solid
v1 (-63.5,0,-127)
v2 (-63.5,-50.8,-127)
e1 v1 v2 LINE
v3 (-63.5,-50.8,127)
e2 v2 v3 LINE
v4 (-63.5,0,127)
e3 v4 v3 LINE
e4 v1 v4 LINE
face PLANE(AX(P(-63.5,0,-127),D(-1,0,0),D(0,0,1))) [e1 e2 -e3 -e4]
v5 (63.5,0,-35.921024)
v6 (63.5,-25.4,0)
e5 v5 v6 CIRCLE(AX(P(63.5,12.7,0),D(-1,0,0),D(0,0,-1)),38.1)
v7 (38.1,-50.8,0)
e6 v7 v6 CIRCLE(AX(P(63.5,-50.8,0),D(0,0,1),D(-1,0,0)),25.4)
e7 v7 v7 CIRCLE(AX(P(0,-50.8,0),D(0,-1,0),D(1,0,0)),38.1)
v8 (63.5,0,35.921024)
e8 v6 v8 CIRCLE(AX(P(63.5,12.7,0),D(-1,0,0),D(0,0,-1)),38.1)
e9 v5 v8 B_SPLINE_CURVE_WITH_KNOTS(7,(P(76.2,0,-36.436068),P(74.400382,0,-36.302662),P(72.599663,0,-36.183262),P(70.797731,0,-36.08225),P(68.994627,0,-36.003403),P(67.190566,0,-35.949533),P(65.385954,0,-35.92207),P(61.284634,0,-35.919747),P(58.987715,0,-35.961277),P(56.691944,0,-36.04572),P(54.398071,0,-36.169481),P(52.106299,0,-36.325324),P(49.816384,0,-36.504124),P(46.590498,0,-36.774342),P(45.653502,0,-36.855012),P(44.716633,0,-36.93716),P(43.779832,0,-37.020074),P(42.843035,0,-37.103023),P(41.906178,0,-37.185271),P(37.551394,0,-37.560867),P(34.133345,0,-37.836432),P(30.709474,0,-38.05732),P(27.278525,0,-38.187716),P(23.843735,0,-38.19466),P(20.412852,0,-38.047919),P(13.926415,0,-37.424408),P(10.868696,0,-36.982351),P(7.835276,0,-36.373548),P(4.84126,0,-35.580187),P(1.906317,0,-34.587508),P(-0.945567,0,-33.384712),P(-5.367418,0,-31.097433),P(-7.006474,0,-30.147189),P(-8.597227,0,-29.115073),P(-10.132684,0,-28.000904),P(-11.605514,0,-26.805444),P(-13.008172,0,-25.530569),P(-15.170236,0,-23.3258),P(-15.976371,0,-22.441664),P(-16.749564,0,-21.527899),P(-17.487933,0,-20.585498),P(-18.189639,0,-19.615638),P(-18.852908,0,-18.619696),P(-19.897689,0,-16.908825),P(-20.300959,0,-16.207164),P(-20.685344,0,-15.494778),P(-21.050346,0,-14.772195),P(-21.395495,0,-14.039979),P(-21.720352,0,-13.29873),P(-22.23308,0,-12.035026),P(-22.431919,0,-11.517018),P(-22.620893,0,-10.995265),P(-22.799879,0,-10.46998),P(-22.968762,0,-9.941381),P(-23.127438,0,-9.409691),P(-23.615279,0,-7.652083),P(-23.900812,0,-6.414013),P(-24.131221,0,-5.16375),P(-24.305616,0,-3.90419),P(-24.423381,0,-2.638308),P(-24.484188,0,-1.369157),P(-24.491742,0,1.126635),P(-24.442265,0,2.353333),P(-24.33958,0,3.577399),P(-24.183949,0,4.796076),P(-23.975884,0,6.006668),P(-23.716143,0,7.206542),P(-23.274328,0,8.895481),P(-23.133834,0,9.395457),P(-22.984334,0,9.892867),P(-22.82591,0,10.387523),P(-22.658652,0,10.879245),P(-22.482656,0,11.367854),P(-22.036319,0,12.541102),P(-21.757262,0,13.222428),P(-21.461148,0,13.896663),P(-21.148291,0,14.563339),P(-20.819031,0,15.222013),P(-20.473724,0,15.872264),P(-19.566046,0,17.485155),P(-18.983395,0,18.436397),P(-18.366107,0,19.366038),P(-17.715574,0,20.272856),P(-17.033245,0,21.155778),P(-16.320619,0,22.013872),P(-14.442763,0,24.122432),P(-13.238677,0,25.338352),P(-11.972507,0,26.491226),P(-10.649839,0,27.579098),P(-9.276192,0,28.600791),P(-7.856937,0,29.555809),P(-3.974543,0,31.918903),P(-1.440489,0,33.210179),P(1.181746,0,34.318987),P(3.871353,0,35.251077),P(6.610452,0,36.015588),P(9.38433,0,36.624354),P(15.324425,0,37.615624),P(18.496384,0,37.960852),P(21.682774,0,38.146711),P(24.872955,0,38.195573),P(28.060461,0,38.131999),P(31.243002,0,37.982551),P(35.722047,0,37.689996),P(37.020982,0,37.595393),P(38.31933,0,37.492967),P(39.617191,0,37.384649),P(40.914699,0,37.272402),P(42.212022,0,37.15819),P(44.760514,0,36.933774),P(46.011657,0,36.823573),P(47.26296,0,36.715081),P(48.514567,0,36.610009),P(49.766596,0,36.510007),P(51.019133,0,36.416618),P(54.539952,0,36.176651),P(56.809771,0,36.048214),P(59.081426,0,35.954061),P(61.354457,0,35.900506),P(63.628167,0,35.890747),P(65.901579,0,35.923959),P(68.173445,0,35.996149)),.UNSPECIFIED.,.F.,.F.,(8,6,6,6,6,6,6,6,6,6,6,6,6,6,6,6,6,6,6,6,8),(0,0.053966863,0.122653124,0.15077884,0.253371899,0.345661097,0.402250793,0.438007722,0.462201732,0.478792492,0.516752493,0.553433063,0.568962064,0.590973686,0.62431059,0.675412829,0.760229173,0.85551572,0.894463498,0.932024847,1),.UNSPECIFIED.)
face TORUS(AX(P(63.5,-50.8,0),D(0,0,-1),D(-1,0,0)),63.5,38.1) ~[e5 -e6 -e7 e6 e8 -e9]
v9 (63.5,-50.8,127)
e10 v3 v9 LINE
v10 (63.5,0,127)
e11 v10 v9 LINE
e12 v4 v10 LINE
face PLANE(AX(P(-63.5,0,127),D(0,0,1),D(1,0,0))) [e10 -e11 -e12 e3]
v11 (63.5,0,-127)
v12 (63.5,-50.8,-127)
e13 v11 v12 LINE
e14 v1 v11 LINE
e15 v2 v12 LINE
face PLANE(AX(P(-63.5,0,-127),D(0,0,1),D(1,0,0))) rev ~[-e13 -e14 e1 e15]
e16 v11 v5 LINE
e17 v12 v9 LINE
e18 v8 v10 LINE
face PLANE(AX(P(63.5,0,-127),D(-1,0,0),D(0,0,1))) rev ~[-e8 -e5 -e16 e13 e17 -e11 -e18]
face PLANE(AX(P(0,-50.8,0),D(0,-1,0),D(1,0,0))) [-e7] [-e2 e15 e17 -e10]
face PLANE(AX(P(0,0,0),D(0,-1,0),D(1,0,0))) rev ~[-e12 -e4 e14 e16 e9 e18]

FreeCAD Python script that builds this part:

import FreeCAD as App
import Part
import Sketcher

V = App.Vector
Q = App.Units.Quantity

doc = App.newDocument("Part")
body = doc.addObject("PartDesign::Body", "Body")

# Sketch on XZ plane
sketch1 = body.newObject("Sketcher::SketchObject", "Sketch")
sketch1.AttachmentSupport = (doc.getObject("XZ_Plane"), [""])
sketch1.MapMode = "FlatFace"
sketch1.addGeometry(Part.LineSegment(V(-64, 127, 0), V(-64, -127, 0)), False)
sketch1.addGeometry(Part.LineSegment(V(-64, -127, 0), V(64, -127, 0)), False)
sketch1.addGeometry(Part.LineSegment(V(64, -127, 0), V(64, 127, 0)), False)
sketch1.addGeometry(Part.LineSegment(V(64, 127, 0), V(-64, 127, 0)), False)
sketch1.addConstraint(Sketcher.Constraint("Coincident", 0, 2, 1, 1))
sketch1.addConstraint(Sketcher.Constraint("Coincident", 1, 2, 2, 1))
sketch1.addConstraint(Sketcher.Constraint("Coincident", 2, 2, 3, 1))
sketch1.addConstraint(Sketcher.Constraint("Coincident", 3, 2, 0, 1))
sketch1.addConstraint(Sketcher.Constraint("Vertical", 0))
sketch1.addConstraint(Sketcher.Constraint("Horizontal", 1))
sketch1.addConstraint(Sketcher.Constraint("Vertical", 2))
sketch1.addConstraint(Sketcher.Constraint("Horizontal", 3))
sketch1.addConstraint(Sketcher.Constraint("Symmetric", 0, 2, 2, 2, -1, 1))
sketch1.addConstraint(Sketcher.Constraint("DistanceX", 1, 1, 1, 2, Q("5 in")))
sketch1.addConstraint(Sketcher.Constraint("DistanceY", 0, 2, 0, 1, Q("10 in")))
pad1 = body.newObject("PartDesign::Pad", "Pad")
pad1.Profile = sketch1
pad1.Length = Q("2 in")

# Sketch on XZ plane
sketch2 = body.newObject("Sketcher::SketchObject", "Sketch001")
sketch2.AttachmentSupport = (doc.getObject("XZ_Plane"), [""])
sketch2.MapMode = "FlatFace"
sketch2.AttachmentOffset = App.Placement(V(0, 0, 2 * 25.4), App.Rotation())
sketch2.addGeometry(Part.Circle(V(0, 0, 0), V(0, 0, 1), 38), False)
sketch2.addGeometry(Part.LineSegment(V(64, 0, 0), V(64, 10, 0)), True)  # axis
sketch2.addConstraint(Sketcher.Constraint("Vertical", 1))
sketch2.addConstraint(Sketcher.Constraint("Coincident", 0, 3, -1, 1))
sketch2.addConstraint(Sketcher.Constraint("PointOnObject", 1, 1, -1))
sketch2.addConstraint(Sketcher.Constraint("Diameter", 0, Q("3 in")))
sketch2.addConstraint(Sketcher.Constraint("DistanceX", -1, 1, 1, 1, Q("2.5 in")))
sketch2.addConstraint(Sketcher.Constraint("DistanceY", 1, 1, 1, 2, Q("10 mm")))
revolution = body.newObject("PartDesign::Revolution", "Revolution")
revolution.Profile = sketch2
revolution.ReferenceAxis = (sketch2, ["Axis0"])
revolution.Angle = 360

doc.recompute()
